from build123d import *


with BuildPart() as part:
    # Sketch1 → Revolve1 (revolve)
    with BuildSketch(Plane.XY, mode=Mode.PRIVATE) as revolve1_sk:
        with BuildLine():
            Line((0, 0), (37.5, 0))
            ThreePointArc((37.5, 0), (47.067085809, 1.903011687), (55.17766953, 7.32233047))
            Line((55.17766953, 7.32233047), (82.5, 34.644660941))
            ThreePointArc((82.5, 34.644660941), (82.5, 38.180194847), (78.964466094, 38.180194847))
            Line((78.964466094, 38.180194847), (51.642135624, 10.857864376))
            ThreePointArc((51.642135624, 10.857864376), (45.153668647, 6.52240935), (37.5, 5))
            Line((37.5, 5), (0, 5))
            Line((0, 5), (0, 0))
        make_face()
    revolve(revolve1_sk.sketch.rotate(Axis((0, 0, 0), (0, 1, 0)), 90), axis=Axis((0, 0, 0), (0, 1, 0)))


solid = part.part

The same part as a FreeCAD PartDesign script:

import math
import FreeCAD as App
import Part
import Sketcher
Q = App.Units.Quantity

doc = App.newDocument("Part")
body = doc.addObject("PartDesign::Body", "Body")

sketch1 = body.newObject("Sketcher::SketchObject", "Sketch")
sketch1.AttachmentSupport = (doc.getObject("XY_Plane"), [""])
sketch1.MapMode = "FlatFace"
sketch1.addGeometry([
    Part.LineSegment(App.Vector(0, 0, 0), App.Vector(37.5, 0, 0)),
    Part.ArcOfCircle(Part.Circle(App.Vector(37.5, 25, 0), App.Vector(0, 0, 1), 25), math.radians(-90), math.radians(-45)),
    Part.LineSegment(App.Vector(55.17767, 7.32233, 0), App.Vector(82.5, 34.644661, 0)),
    Part.ArcOfCircle(Part.Circle(App.Vector(80.732233, 36.412428, 0), App.Vector(0, 0, 1), 2.5), math.radians(-45), math.radians(135)),
    Part.LineSegment(App.Vector(78.964466, 38.180195, 0), App.Vector(51.642136, 10.857864, 0)),
    Part.ArcOfCircle(Part.Circle(App.Vector(37.5, 25, 0), App.Vector(0, 0, 1), 20), math.radians(-90), math.radians(-45)),
    Part.LineSegment(App.Vector(37.5, 5, 0), App.Vector(0, 5, 0)),
    Part.LineSegment(App.Vector(0, 5, 0), App.Vector(0, 0, 0)),
], False)
sketch1.addConstraint([
    Sketcher.Constraint("Tangent", 0, 2, 1, 1),
    Sketcher.Constraint("Tangent", 1, 2, 2, 1),
    Sketcher.Constraint("Tangent", 2, 2, 3, 1),
    Sketcher.Constraint("Tangent", 3, 2, 4, 1),
    Sketcher.Constraint("Tangent", 4, 2, 5, 2),
    Sketcher.Constraint("Tangent", 5, 1, 6, 1),
    Sketcher.Constraint("Coincident", 6, 2, 7, 1),
    Sketcher.Constraint("Coincident", 7, 2, 0, 1),
    Sketcher.Constraint("Horizontal", 0),
    Sketcher.Constraint("Horizontal", 6),
    Sketcher.Constraint("Vertical", 7),
    Sketcher.Constraint("Coincident", 7, 2, -1, 1),
    Sketcher.Constraint("Coincident", 5, 3, 1, 3),
    Sketcher.Constraint("Parallel", 2, 4),
    Sketcher.Constraint("Radius", 1, Q("25 mm")),
    Sketcher.Constraint("Radius", 5, Q("20 mm")),
    Sketcher.Constraint("Angle", 2, Q("45 deg")),
    Sketcher.Constraint("DistanceX", 0, 1, 0, 2, Q("37.5 mm")),
    Sketcher.Constraint("DistanceX", 1, 3, 2, 2, Q("45 mm")),
])
revolution = body.newObject("PartDesign::Revolution", "Revolution")
revolution.Profile = sketch1
revolution.ReferenceAxis = (sketch1, ["V_Axis"])
revolution.Angle = 360

doc.recompute()
